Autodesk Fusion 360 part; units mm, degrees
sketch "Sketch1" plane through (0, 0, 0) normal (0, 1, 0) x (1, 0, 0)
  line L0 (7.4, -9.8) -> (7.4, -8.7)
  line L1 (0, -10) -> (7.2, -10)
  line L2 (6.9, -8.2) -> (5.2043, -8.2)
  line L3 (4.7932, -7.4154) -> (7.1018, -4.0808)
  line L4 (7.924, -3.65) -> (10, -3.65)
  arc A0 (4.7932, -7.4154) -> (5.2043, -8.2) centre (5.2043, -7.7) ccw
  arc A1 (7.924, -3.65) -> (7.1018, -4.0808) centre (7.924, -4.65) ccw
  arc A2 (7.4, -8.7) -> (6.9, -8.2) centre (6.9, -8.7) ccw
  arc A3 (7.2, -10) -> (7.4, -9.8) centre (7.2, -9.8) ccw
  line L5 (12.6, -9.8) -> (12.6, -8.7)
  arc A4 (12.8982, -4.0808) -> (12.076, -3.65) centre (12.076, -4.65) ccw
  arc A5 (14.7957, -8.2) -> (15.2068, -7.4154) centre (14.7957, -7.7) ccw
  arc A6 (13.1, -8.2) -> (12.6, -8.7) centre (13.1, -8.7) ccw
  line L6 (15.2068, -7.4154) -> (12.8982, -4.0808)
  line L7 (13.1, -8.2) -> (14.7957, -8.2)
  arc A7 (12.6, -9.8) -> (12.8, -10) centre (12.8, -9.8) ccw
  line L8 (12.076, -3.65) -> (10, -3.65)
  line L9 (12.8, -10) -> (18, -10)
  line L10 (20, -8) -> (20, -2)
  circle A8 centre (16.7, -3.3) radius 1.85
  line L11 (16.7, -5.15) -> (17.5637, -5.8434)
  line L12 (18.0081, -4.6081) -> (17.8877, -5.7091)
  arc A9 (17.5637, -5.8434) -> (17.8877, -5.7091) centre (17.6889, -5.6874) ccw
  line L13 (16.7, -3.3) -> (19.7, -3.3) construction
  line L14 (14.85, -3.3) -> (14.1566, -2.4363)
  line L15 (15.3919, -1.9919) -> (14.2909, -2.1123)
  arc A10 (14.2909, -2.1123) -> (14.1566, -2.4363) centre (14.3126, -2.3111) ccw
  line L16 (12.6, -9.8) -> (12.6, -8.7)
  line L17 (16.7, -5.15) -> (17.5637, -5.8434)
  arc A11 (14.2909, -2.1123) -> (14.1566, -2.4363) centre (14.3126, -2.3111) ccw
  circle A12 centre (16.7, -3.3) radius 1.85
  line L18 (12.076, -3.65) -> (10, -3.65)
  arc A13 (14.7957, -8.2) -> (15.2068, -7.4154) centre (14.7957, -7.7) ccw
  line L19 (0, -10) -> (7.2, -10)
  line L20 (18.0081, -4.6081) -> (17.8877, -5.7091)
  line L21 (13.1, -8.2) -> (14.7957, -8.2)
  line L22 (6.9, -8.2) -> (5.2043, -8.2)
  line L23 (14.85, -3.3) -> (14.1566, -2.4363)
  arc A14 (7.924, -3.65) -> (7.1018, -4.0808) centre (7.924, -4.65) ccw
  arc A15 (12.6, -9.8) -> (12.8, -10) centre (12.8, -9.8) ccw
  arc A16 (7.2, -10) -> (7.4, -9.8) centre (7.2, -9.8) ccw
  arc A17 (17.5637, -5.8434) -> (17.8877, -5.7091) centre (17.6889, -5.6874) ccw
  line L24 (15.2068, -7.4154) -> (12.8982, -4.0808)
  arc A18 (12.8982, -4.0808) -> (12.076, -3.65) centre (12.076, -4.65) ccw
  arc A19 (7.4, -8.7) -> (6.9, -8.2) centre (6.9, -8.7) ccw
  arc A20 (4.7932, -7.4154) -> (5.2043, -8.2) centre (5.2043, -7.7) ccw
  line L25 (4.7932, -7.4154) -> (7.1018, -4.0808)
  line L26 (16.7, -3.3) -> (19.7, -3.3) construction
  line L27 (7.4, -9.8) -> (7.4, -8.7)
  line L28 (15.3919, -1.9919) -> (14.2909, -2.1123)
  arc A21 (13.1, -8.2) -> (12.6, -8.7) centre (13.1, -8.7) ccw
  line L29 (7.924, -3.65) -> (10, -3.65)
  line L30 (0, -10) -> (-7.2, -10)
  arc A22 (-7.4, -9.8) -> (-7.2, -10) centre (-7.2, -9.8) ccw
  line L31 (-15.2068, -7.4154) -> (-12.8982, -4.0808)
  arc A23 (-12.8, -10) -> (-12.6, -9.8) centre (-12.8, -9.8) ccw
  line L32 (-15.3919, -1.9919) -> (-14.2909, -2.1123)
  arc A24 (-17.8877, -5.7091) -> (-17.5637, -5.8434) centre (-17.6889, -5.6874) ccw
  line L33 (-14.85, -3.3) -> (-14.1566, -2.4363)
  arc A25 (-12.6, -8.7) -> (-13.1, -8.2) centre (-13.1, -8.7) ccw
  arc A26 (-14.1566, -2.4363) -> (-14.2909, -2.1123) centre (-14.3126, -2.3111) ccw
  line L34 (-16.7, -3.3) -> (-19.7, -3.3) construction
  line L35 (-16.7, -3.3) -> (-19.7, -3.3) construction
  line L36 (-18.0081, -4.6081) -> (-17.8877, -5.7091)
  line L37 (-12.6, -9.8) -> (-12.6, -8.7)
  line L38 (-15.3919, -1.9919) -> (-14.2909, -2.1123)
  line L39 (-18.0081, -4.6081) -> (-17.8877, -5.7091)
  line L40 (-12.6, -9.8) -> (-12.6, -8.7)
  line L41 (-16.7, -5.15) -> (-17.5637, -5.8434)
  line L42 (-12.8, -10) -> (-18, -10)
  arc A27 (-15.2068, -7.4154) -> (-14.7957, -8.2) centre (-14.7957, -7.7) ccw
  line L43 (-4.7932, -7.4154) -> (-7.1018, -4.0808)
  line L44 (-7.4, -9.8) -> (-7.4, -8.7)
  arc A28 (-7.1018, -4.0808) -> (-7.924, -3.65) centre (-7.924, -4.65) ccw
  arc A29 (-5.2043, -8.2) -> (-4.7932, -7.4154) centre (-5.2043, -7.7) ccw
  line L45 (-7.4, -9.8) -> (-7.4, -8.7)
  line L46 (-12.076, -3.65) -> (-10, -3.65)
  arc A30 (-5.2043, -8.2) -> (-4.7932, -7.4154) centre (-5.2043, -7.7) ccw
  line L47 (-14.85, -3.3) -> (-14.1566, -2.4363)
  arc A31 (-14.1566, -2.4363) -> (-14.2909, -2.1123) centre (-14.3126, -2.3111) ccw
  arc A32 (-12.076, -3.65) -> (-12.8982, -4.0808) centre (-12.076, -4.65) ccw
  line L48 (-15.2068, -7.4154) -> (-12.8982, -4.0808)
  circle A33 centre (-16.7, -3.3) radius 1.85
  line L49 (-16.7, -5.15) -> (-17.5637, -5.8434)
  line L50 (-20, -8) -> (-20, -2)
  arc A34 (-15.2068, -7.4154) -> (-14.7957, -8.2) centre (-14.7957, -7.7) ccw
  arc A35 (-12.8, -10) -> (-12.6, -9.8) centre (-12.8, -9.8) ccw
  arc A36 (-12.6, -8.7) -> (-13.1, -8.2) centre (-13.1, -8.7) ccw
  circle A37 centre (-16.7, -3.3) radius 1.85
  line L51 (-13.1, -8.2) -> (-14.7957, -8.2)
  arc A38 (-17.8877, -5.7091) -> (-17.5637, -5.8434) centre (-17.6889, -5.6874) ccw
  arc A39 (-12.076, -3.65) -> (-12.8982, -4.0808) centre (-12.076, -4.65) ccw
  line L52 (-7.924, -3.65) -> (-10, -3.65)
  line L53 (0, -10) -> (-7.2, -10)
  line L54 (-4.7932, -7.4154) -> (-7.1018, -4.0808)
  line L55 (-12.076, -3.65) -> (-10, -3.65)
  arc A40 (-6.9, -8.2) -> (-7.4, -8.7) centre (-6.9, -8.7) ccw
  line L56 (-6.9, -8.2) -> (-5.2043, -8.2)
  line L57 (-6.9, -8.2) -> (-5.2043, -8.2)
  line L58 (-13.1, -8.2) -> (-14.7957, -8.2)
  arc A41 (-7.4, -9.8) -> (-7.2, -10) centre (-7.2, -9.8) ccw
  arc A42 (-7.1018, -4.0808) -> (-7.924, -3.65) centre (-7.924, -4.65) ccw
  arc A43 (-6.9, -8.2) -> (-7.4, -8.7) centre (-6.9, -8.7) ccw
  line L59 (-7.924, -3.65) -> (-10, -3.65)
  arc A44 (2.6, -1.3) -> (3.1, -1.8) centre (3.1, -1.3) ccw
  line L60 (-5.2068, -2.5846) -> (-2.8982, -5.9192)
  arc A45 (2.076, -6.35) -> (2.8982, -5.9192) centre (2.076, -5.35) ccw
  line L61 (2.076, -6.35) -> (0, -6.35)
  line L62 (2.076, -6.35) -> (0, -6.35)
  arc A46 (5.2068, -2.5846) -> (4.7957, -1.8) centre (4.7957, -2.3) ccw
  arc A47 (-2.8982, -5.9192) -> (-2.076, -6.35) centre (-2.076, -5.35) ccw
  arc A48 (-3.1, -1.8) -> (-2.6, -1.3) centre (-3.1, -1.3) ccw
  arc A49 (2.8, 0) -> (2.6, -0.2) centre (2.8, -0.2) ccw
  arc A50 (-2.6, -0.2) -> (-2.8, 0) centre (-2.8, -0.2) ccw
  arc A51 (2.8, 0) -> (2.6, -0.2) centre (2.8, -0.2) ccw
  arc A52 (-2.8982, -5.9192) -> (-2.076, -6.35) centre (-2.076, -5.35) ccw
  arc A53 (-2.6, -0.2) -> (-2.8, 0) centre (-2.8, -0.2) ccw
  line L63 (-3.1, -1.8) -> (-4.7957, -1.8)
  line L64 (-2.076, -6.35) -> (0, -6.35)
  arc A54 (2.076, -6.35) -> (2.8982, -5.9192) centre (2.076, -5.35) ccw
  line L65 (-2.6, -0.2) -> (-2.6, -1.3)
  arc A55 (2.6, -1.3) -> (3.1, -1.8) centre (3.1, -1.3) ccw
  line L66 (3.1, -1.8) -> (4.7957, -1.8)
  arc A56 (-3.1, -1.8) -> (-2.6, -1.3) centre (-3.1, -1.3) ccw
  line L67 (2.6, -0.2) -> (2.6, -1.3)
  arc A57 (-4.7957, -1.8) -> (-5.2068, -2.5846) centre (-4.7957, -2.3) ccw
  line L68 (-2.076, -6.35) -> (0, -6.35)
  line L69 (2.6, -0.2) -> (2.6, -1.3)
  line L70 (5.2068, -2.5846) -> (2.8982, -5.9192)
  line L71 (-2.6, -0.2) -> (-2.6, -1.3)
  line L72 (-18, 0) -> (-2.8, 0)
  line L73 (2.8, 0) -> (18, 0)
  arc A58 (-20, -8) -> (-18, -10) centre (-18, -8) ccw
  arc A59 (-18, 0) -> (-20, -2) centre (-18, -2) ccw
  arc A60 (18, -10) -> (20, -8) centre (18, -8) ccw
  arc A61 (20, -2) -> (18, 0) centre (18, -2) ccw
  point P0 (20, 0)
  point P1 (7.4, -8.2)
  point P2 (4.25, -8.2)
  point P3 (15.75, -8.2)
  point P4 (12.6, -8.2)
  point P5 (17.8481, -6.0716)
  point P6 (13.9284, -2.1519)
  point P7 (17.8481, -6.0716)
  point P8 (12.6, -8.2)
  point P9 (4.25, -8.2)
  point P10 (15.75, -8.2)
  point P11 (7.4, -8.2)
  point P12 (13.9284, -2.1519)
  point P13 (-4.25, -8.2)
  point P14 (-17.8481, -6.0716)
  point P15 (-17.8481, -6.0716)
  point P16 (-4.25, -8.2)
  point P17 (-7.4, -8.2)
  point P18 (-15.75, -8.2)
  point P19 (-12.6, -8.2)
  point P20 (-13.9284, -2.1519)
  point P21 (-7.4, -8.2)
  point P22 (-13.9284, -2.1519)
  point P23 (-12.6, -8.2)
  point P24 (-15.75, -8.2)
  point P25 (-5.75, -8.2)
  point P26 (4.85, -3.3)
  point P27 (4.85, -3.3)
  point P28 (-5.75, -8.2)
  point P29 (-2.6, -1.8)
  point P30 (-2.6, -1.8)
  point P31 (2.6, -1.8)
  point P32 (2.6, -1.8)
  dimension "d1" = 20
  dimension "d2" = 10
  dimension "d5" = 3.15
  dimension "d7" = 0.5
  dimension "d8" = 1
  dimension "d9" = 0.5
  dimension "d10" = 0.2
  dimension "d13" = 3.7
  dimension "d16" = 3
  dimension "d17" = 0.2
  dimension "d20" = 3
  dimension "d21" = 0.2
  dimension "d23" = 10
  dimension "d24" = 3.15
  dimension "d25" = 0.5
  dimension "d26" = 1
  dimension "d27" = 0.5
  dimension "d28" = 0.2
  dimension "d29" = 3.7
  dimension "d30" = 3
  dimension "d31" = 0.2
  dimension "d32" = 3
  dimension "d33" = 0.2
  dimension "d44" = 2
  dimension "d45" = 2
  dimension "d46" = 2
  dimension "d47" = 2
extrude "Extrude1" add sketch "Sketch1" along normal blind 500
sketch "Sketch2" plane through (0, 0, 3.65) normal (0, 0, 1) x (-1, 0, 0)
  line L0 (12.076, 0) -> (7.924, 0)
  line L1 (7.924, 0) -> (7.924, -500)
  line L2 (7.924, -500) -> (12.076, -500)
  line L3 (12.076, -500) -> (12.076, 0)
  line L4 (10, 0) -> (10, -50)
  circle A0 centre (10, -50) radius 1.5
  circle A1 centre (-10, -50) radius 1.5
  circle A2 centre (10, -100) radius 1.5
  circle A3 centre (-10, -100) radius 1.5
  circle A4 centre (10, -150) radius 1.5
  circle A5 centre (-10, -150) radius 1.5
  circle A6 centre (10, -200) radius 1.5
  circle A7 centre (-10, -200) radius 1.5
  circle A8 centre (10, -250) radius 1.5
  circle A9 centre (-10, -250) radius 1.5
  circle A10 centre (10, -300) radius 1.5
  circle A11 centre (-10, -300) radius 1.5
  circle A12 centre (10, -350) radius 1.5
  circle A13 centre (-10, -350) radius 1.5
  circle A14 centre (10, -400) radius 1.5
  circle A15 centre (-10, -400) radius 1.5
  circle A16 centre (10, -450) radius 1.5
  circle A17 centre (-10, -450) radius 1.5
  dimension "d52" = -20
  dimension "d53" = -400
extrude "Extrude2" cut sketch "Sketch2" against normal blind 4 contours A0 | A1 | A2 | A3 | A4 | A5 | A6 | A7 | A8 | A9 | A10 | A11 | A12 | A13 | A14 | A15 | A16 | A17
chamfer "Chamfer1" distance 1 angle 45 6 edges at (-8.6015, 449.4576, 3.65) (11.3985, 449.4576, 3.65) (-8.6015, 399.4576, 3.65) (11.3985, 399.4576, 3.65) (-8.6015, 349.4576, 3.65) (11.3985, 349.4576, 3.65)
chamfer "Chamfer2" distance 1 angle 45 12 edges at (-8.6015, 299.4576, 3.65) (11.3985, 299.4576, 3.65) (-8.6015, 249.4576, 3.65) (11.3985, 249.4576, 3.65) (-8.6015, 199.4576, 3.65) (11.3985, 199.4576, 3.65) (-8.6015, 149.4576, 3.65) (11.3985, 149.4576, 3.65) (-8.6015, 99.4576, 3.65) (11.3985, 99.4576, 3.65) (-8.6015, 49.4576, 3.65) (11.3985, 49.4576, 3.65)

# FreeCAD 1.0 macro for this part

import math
import FreeCAD as App
import Part
import Sketcher

V = App.Vector
Q = App.Units.Quantity


def edges_at(feature, points):
    """Names of the edges that pass closest to the given points."""
    edges = feature.Shape.Edges
    near = lambda p: min(range(len(edges)), key=lambda i: edges[i].distToShape(Part.Vertex(*p))[0])
    return sorted({f"Edge{near(p) + 1}" for p in points})

doc = App.newDocument("Part")
body = doc.addObject("PartDesign::Body", "Body")

# Sketch on XZ plane
sketch1 = doc.addObject("Sketcher::SketchObject", "Sketch")
body.addObject(sketch1)
sketch1.AttachmentSupport = (doc.XZ_Plane, [""])
sketch1.MapMode = "FlatFace"
sketch1.addGeometry([
    Part.ArcOfCircle(Part.Circle(V(7.2, 9.8, 0), V(0, 0, 1), 0.2), math.radians(0), math.radians(90)),  # 0
    Part.LineSegment(V(7.4, 9.8, 0), V(7.4, 8.7, 0)),  # 1
    Part.ArcOfCircle(Part.Circle(V(6.9, 8.7, 0), V(0, 0, 1), 0.5), math.radians(-90), math.radians(0)),  # 2
    Part.LineSegment(V(6.9, 8.2, 0), V(5.2, 8.2, 0)),  # 3
    Part.ArcOfCircle(Part.Circle(V(5.2, 7.7, 0), V(0, 0, 1), 0.5), math.radians(90), math.radians(215)),  # 4
    Part.LineSegment(V(4.79, 7.42, 0), V(7.1, 4.08, 0)),  # 5
    Part.ArcOfCircle(Part.Circle(V(7.92, 4.65, 0), V(0, 0, 1), 1), math.radians(-145), math.radians(-90)),  # 6
    Part.LineSegment(V(7.92, 3.65, 0), V(12.08, 3.65, 0)),  # 7
    Part.ArcOfCircle(Part.Circle(V(12.08, 4.65, 0), V(0, 0, 1), 1), math.radians(-90), math.radians(-35)),  # 8
    Part.LineSegment(V(12.9, 4.08, 0), V(15.21, 7.42, 0)),  # 9
    Part.ArcOfCircle(Part.Circle(V(14.8, 7.7, 0), V(0, 0, 1), 0.5), math.radians(-35), math.radians(90)),  # 10
    Part.LineSegment(V(14.8, 8.2, 0), V(13.1, 8.2, 0)),  # 11
    Part.ArcOfCircle(Part.Circle(V(13.1, 8.7, 0), V(0, 0, 1), 0.5), math.radians(180), math.radians(270)),  # 12
    Part.LineSegment(V(12.6, 8.7, 0), V(12.6, 9.8, 0)),  # 13
    Part.ArcOfCircle(Part.Circle(V(12.8, 9.8, 0), V(0, 0, 1), 0.2), math.radians(90), math.radians(180)),  # 14
    Part.LineSegment(V(12.8, 10, 0), V(18, 10, 0)),  # 15
    Part.ArcOfCircle(Part.Circle(V(18, 8, 0), V(0, 0, 1), 2), math.radians(0), math.radians(90)),  # 16
    Part.LineSegment(V(20, 8, 0), V(20, 2, 0)),  # 17
    Part.ArcOfCircle(Part.Circle(V(18, 2, 0), V(0, 0, 1), 2), math.radians(-90), math.radians(0)),  # 18
    Part.LineSegment(V(18, 0, 0), V(2.8, 0, 0)),  # 19
    Part.ArcOfCircle(Part.Circle(V(2.8, 0.2, 0), V(0, 0, 1), 0.2), math.radians(180), math.radians(270)),  # 20
    Part.LineSegment(V(2.6, 0.2, 0), V(2.6, 1.3, 0)),  # 21
    Part.ArcOfCircle(Part.Circle(V(3.1, 1.3, 0), V(0, 0, 1), 0.5), math.radians(90), math.radians(180)),  # 22
    Part.LineSegment(V(3.1, 1.8, 0), V(4.8, 1.8, 0)),  # 23
    Part.ArcOfCircle(Part.Circle(V(4.8, 2.3, 0), V(0, 0, 1), 0.5), math.radians(-90), math.radians(35)),  # 24
    Part.LineSegment(V(5.21, 2.58, 0), V(2.9, 5.92, 0)),  # 25
    Part.ArcOfCircle(Part.Circle(V(2.08, 5.35, 0), V(0, 0, 1), 1), math.radians(35), math.radians(90)),  # 26
    Part.LineSegment(V(2.08, 6.35, 0), V(-2.08, 6.35, 0)),  # 27
    Part.ArcOfCircle(Part.Circle(V(-2.08, 5.35, 0), V(0, 0, 1), 1), math.radians(90), math.radians(145)),  # 28
    Part.LineSegment(V(-2.9, 5.92, 0), V(-5.21, 2.58, 0)),  # 29
    Part.ArcOfCircle(Part.Circle(V(-4.8, 2.3, 0), V(0, 0, 1), 0.5), math.radians(145), math.radians(270)),  # 30
    Part.LineSegment(V(-4.8, 1.8, 0), V(-3.1, 1.8, 0)),  # 31
    Part.ArcOfCircle(Part.Circle(V(-3.1, 1.3, 0), V(0, 0, 1), 0.5), math.radians(0), math.radians(90)),  # 32
    Part.LineSegment(V(-2.6, 1.3, 0), V(-2.6, 0.2, 0)),  # 33
    Part.ArcOfCircle(Part.Circle(V(-2.8, 0.2, 0), V(0, 0, 1), 0.2), math.radians(-90), math.radians(0)),  # 34
    Part.LineSegment(V(-2.8, 0, 0), V(-18, 0, 0)),  # 35
    Part.ArcOfCircle(Part.Circle(V(-18, 2, 0), V(0, 0, 1), 2), math.radians(180), math.radians(270)),  # 36
    Part.LineSegment(V(-20, 2, 0), V(-20, 8, 0)),  # 37
    Part.ArcOfCircle(Part.Circle(V(-18, 8, 0), V(0, 0, 1), 2), math.radians(90), math.radians(180)),  # 38
    Part.LineSegment(V(-18, 10, 0), V(-12.8, 10, 0)),  # 39
    Part.ArcOfCircle(Part.Circle(V(-12.8, 9.8, 0), V(0, 0, 1), 0.2), math.radians(0), math.radians(90)),  # 40
    Part.LineSegment(V(-12.6, 9.8, 0), V(-12.6, 8.7, 0)),  # 41
    Part.ArcOfCircle(Part.Circle(V(-13.1, 8.7, 0), V(0, 0, 1), 0.5), math.radians(-90), math.radians(0)),  # 42
    Part.LineSegment(V(-13.1, 8.2, 0), V(-14.8, 8.2, 0)),  # 43
    Part.ArcOfCircle(Part.Circle(V(-14.8, 7.7, 0), V(0, 0, 1), 0.5), math.radians(90), math.radians(215)),  # 44
    Part.LineSegment(V(-15.21, 7.42, 0), V(-12.9, 4.08, 0)),  # 45
    Part.ArcOfCircle(Part.Circle(V(-12.08, 4.65, 0), V(0, 0, 1), 1), math.radians(-145), math.radians(-90)),  # 46
    Part.LineSegment(V(-12.08, 3.65, 0), V(-7.92, 3.65, 0)),  # 47
    Part.ArcOfCircle(Part.Circle(V(-7.92, 4.65, 0), V(0, 0, 1), 1), math.radians(-90), math.radians(-35)),  # 48
    Part.LineSegment(V(-7.1, 4.08, 0), V(-4.79, 7.42, 0)),  # 49
    Part.ArcOfCircle(Part.Circle(V(-5.2, 7.7, 0), V(0, 0, 1), 0.5), math.radians(-35), math.radians(90)),  # 50
    Part.LineSegment(V(-5.2, 8.2, 0), V(-6.9, 8.2, 0)),  # 51
    Part.ArcOfCircle(Part.Circle(V(-6.9, 8.7, 0), V(0, 0, 1), 0.5), math.radians(180), math.radians(270)),  # 52
    Part.LineSegment(V(-7.4, 8.7, 0), V(-7.4, 9.8, 0)),  # 53
    Part.ArcOfCircle(Part.Circle(V(-7.2, 9.8, 0), V(0, 0, 1), 0.2), math.radians(90), math.radians(180)),  # 54
    Part.LineSegment(V(-7.2, 10, 0), V(7.2, 10, 0)),  # 55
    Part.ArcOfCircle(Part.Circle(V(-16.7, 3.3, 0), V(0, 0, 1), 1.85), math.radians(135), math.radians(315)),  # 56
    Part.LineSegment(V(-15.39, 1.99, 0), V(-14.29, 2.11, 0)),  # 57
    Part.ArcOfCircle(Part.Circle(V(-14.31, 2.31, 0), V(0, 0, 1), 0.2), math.radians(-84), math.radians(39)),  # 58
    Part.LineSegment(V(-14.16, 2.44, 0), V(-14.85, 3.3, 0)),  # 59
    Part.ArcOfCircle(Part.Circle(V(-16.7, 3.3, 0), V(0, 0, 1), 1.85), math.radians(0), math.radians(90)),  # 60
    Part.LineSegment(V(-16.7, 5.15, 0), V(-17.56, 5.84, 0)),  # 61
    Part.ArcOfCircle(Part.Circle(V(-17.69, 5.69, 0), V(0, 0, 1), 0.2), math.radians(51), math.radians(174)),  # 62
    Part.LineSegment(V(-17.89, 5.71, 0), V(-18.01, 4.61, 0)),  # 63
    Part.ArcOfCircle(Part.Circle(V(16.7, 3.3, 0), V(0, 0, 1), 1.85), math.radians(-135), math.radians(45)),  # 64
    Part.LineSegment(V(18.01, 4.61, 0), V(17.89, 5.71, 0)),  # 65
    Part.ArcOfCircle(Part.Circle(V(17.69, 5.69, 0), V(0, 0, 1), 0.2), math.radians(6), math.radians(129)),  # 66
    Part.LineSegment(V(17.56, 5.84, 0), V(16.7, 5.15, 0)),  # 67
    Part.ArcOfCircle(Part.Circle(V(16.7, 3.3, 0), V(0, 0, 1), 1.85), math.radians(90), math.radians(180)),  # 68
    Part.LineSegment(V(14.85, 3.3, 0), V(14.16, 2.44, 0)),  # 69
    Part.ArcOfCircle(Part.Circle(V(14.31, 2.31, 0), V(0, 0, 1), 0.2), math.radians(141), math.radians(264)),  # 70
    Part.LineSegment(V(14.29, 2.11, 0), V(15.39, 1.99, 0)),  # 71
], False)
sketch1.addConstraint([
    Sketcher.Constraint("Tangent", 0, 1, 1, 1),
    Sketcher.Constraint("Tangent", 1, 2, 2, 2),
    Sketcher.Constraint("Tangent", 2, 1, 3, 1),
    Sketcher.Constraint("Tangent", 3, 2, 4, 1),
    Sketcher.Constraint("Tangent", 4, 2, 5, 1),
    Sketcher.Constraint("Tangent", 5, 2, 6, 1),
    Sketcher.Constraint("Tangent", 6, 2, 7, 1),
    Sketcher.Constraint("Tangent", 7, 2, 8, 1),
    Sketcher.Constraint("Tangent", 8, 2, 9, 1),
    Sketcher.Constraint("Tangent", 9, 2, 10, 1),
    Sketcher.Constraint("Tangent", 10, 2, 11, 1),
    Sketcher.Constraint("Tangent", 11, 2, 12, 2),
    Sketcher.Constraint("Tangent", 12, 1, 13, 1),
    Sketcher.Constraint("Tangent", 13, 2, 14, 2),
    Sketcher.Constraint("Tangent", 14, 1, 15, 1),
    Sketcher.Constraint("Tangent", 15, 2, 16, 2),
    Sketcher.Constraint("Tangent", 16, 1, 17, 1),
    Sketcher.Constraint("Tangent", 17, 2, 18, 2),
    Sketcher.Constraint("Tangent", 18, 1, 19, 1),
    Sketcher.Constraint("Tangent", 19, 2, 20, 2),
    Sketcher.Constraint("Tangent", 20, 1, 21, 1),
    Sketcher.Constraint("Tangent", 21, 2, 22, 2),
    Sketcher.Constraint("Tangent", 22, 1, 23, 1),
    Sketcher.Constraint("Tangent", 23, 2, 24, 1),
    Sketcher.Constraint("Tangent", 24, 2, 25, 1),
    Sketcher.Constraint("Tangent", 25, 2, 26, 1),
    Sketcher.Constraint("Tangent", 26, 2, 27, 1),
    Sketcher.Constraint("Tangent", 27, 2, 28, 1),
    Sketcher.Constraint("Tangent", 28, 2, 29, 1),
    Sketcher.Constraint("Tangent", 29, 2, 30, 1),
    Sketcher.Constraint("Tangent", 30, 2, 31, 1),
    Sketcher.Constraint("Tangent", 31, 2, 32, 2),
    Sketcher.Constraint("Tangent", 32, 1, 33, 1),
    Sketcher.Constraint("Tangent", 33, 2, 34, 2),
    Sketcher.Constraint("Tangent", 34, 1, 35, 1),
    Sketcher.Constraint("Tangent", 35, 2, 36, 2),
    Sketcher.Constraint("Tangent", 36, 1, 37, 1),
    Sketcher.Constraint("Tangent", 37, 2, 38, 2),
    Sketcher.Constraint("Tangent", 38, 1, 39, 1),
    Sketcher.Constraint("Tangent", 39, 2, 40, 2),
    Sketcher.Constraint("Tangent", 40, 1, 41, 1),
    Sketcher.Constraint("Tangent", 41, 2, 42, 2),
    Sketcher.Constraint("Tangent", 42, 1, 43, 1),
    Sketcher.Constraint("Tangent", 43, 2, 44, 1),
    Sketcher.Constraint("Tangent", 44, 2, 45, 1),
    Sketcher.Constraint("Tangent", 45, 2, 46, 1),
    Sketcher.Constraint("Tangent", 46, 2, 47, 1),
    Sketcher.Constraint("Tangent", 47, 2, 48, 1),
    Sketcher.Constraint("Tangent", 48, 2, 49, 1),
    Sketcher.Constraint("Tangent", 49, 2, 50, 1),
    Sketcher.Constraint("Tangent", 50, 2, 51, 1),
    Sketcher.Constraint("Tangent", 51, 2, 52, 2),
    Sketcher.Constraint("Tangent", 52, 1, 53, 1),
    Sketcher.Constraint("Tangent", 53, 2, 54, 2),
    Sketcher.Constraint("Tangent", 54, 1, 55, 1),
    Sketcher.Constraint("Tangent", 55, 2, 0, 2),
    Sketcher.Constraint("Coincident", 56, 2, 57, 1),
    Sketcher.Constraint("Tangent", 57, 2, 58, 1),
    Sketcher.Constraint("Tangent", 58, 2, 59, 1),
    Sketcher.Constraint("Coincident", 59, 2, 60, 1),
    Sketcher.Constraint("Coincident", 60, 2, 61, 1),
    Sketcher.Constraint("Tangent", 61, 2, 62, 1),
    Sketcher.Constraint("Tangent", 62, 2, 63, 1),
    Sketcher.Constraint("Coincident", 63, 2, 56, 1),
    Sketcher.Constraint("Coincident", 64, 2, 65, 1),
    Sketcher.Constraint("Tangent", 65, 2, 66, 1),
    Sketcher.Constraint("Tangent", 66, 2, 67, 1),
    Sketcher.Constraint("Coincident", 67, 2, 68, 1),
    Sketcher.Constraint("Coincident", 68, 2, 69, 1),
    Sketcher.Constraint("Tangent", 69, 2, 70, 1),
    Sketcher.Constraint("Tangent", 70, 2, 71, 1),
    Sketcher.Constraint("Coincident", 71, 2, 64, 1),
    Sketcher.Constraint("Vertical", 1),
    Sketcher.Constraint("Horizontal", 3),
    Sketcher.Constraint("Horizontal", 7),
    Sketcher.Constraint("Horizontal", 11),
    Sketcher.Constraint("Vertical", 13),
    Sketcher.Constraint("Horizontal", 15),
    Sketcher.Constraint("Vertical", 17),
    Sketcher.Constraint("Horizontal", 19),
    Sketcher.Constraint("Vertical", 21),
    Sketcher.Constraint("Horizontal", 23),
    Sketcher.Constraint("Horizontal", 27),
    Sketcher.Constraint("Horizontal", 31),
    Sketcher.Constraint("Vertical", 33),
    Sketcher.Constraint("Horizontal", 35),
    Sketcher.Constraint("Vertical", 37),
    Sketcher.Constraint("Horizontal", 39),
    Sketcher.Constraint("Vertical", 41),
    Sketcher.Constraint("Horizontal", 43),
    Sketcher.Constraint("Horizontal", 47),
    Sketcher.Constraint("Horizontal", 51),
    Sketcher.Constraint("Vertical", 53),
    Sketcher.Constraint("Horizontal", 55),
    Sketcher.Constraint("Coincident", 60, 3, 56, 3),
    Sketcher.Constraint("Coincident", 68, 3, 64, 3),
    Sketcher.Constraint("Equal", 2, 4),
    Sketcher.Constraint("Equal", 6, 8),
    Sketcher.Constraint("Equal", 4, 10),
    Sketcher.Constraint("Equal", 10, 12),
    Sketcher.Constraint("Equal", 0, 14),
    Sketcher.Constraint("Equal", 16, 18),
    Sketcher.Constraint("Equal", 14, 20),
    Sketcher.Constraint("Equal", 12, 22),
    Sketcher.Constraint("Equal", 22, 24),
    Sketcher.Constraint("Equal", 8, 26),
    Sketcher.Constraint("Equal", 26, 28),
    Sketcher.Constraint("Equal", 24, 30),
    Sketcher.Constraint("Equal", 30, 32),
    Sketcher.Constraint("Equal", 20, 34),
    Sketcher.Constraint("Equal", 18, 36),
    Sketcher.Constraint("Equal", 36, 38),
    Sketcher.Constraint("Equal", 34, 40),
    Sketcher.Constraint("Equal", 32, 42),
    Sketcher.Constraint("Equal", 42, 44),
    Sketcher.Constraint("Equal", 28, 46),
    Sketcher.Constraint("Equal", 46, 48),
    Sketcher.Constraint("Equal", 44, 50),
    Sketcher.Constraint("Equal", 50, 52),
    Sketcher.Constraint("Equal", 40, 54),
    Sketcher.Constraint("Equal", 54, 58),
    Sketcher.Constraint("Equal", 56, 60),
    Sketcher.Constraint("Equal", 58, 62),
    Sketcher.Constraint("Equal", 60, 64),
    Sketcher.Constraint("Equal", 62, 66),
    Sketcher.Constraint("Equal", 64, 68),
    Sketcher.Constraint("Equal", 66, 70),
    Sketcher.Constraint("Symmetric", 19, 2, 34, 1, -1, 1),
    Sketcher.Constraint("Symmetric", 24, 3, 30, 3, -2),
    Sketcher.Constraint("Symmetric", 18, 3, 36, 3, -2),
    Sketcher.Constraint("Symmetric", 14, 3, 40, 3, -2),
    Sketcher.Constraint("Symmetric", 10, 3, 44, 3, -2),
    Sketcher.Constraint("Symmetric", 8, 3, 46, 3, -2),
    Sketcher.Constraint("Symmetric", 4, 3, 50, 3, -2),
    Sketcher.Constraint("Symmetric", 56, 3, 64, 3, -2),
    Sketcher.Constraint("Symmetric", 62, 3, 66, 3, -2),
    Sketcher.Constraint("Symmetric", 58, 3, 70, 3, -2),
    Sketcher.Constraint("Parallel", 5, 25),
    Sketcher.Constraint("Parallel", 9, 29),
    Sketcher.Constraint("Parallel", 25, 45),
    Sketcher.Constraint("Parallel", 29, 49),
    Sketcher.Constraint("Perpendicular", 57, 65),
    Sketcher.Constraint("Perpendicular", 59, 67),
    Sketcher.Constraint("Perpendicular", 61, 69),
    Sketcher.Constraint("Perpendicular", 63, 71),
    Sketcher.Constraint("Horizontal", 4, 3, 10, 3),
    Sketcher.Constraint("Horizontal", 0, 3, 14, 3),
    Sketcher.Constraint("Horizontal", 68, 3, 59, 2),
    Sketcher.Constraint("Horizontal", 63, 2, 64, 2),
    Sketcher.Constraint("Horizontal", 61, 2, 66, 2),
    Sketcher.Constraint("Vertical", 56, 3, 60, 2),
    Sketcher.Constraint("Equal", 3, 11),
    Sketcher.Constraint("Equal", 11, 23),
    Sketcher.Constraint("Equal", 7, 27),
    Sketcher.Constraint("Equal", 43, 51),
    Sketcher.Constraint("Equal", 13, 21),
    Sketcher.Constraint("Equal", 9, 25),
    Sketcher.Constraint("Equal", 57, 59),
    Sketcher.Constraint("Equal", 59, 61),
    Sketcher.Constraint("Radius", 6, Q("1 mm")),
    Sketcher.Constraint("Radius", 16, Q("2 mm")),
    Sketcher.Constraint("Radius", 0, Q("0.2 mm")),
    Sketcher.Constraint("Radius", 2, Q("0.5 mm")),
    Sketcher.Constraint("Radius", 56, Q("1.85 mm")),
    Sketcher.Constraint("DistanceY", -1, 1, 14, 1, Q("10 mm")),
    Sketcher.Constraint("DistanceX", -1, 1, 16, 1, Q("20 mm")),
    Sketcher.Constraint("DistanceX", 15, 1, 15, 2, Q("5.2 mm")),
    Sketcher.Constraint("DistanceX", 19, 2, 19, 1, Q("15.2 mm")),
    Sketcher.Constraint("DistanceY", 1, 2, 1, 1, Q("1.1 mm")),
    Sketcher.Constraint("DistanceX", 56, 3, -1, 1, Q("16.7 mm")),
    Sketcher.Constraint("DistanceY", -1, 1, 56, 3, Q("3.3 mm")),
    Sketcher.Constraint("Angle", 57, Q("6.2408 deg")),
    Sketcher.Constraint("DistanceX", 7, 1, 7, 2, Q("4.152 mm")),
    Sketcher.Constraint("DistanceY", -1, 1, 6, 3, Q("4.65 mm")),
    Sketcher.Constraint("DistanceX", 3, 2, 3, 1, Q("1.6957 mm")),
    Sketcher.Constraint("DistanceY", -1, 1, 58, 3, Q("2.311 mm")),
])
pad1 = doc.addObject("PartDesign::Pad", "Pad")
body.addObject(pad1)
pad1.Profile = sketch1
pad1.Length = 500
pad1.Reversed = True

# Sketch on XY plane
sketch2 = doc.addObject("Sketcher::SketchObject", "Sketch001")
body.addObject(sketch2)
sketch2.AttachmentSupport = (doc.XY_Plane, [""])
sketch2.MapMode = "FlatFace"
sketch2.AttachmentOffset = App.Placement(V(0, 0, 3.65), App.Rotation())
sketch2.addGeometry([
    Part.Circle(V(-10, 50, 0), V(0, 0, 1), 1.5),  # 0
    Part.Circle(V(10, 50, 0), V(0, 0, 1), 1.5),  # 1
    Part.Circle(V(-10, 100, 0), V(0, 0, 1), 1.5),  # 2
    Part.Circle(V(10, 100, 0), V(0, 0, 1), 1.5),  # 3
    Part.Circle(V(-10, 150, 0), V(0, 0, 1), 1.5),  # 4
    Part.Circle(V(10, 150, 0), V(0, 0, 1), 1.5),  # 5
    Part.Circle(V(-10, 200, 0), V(0, 0, 1), 1.5),  # 6
    Part.Circle(V(10, 200, 0), V(0, 0, 1), 1.5),  # 7
    Part.Circle(V(-10, 250, 0), V(0, 0, 1), 1.5),  # 8
    Part.Circle(V(10, 250, 0), V(0, 0, 1), 1.5),  # 9
    Part.Circle(V(-10, 300, 0), V(0, 0, 1), 1.5),  # 10
    Part.Circle(V(10, 300, 0), V(0, 0, 1), 1.5),  # 11
    Part.Circle(V(-10, 350, 0), V(0, 0, 1), 1.5),  # 12
    Part.Circle(V(10, 350, 0), V(0, 0, 1), 1.5),  # 13
    Part.Circle(V(-10, 400, 0), V(0, 0, 1), 1.5),  # 14
    Part.Circle(V(10, 400, 0), V(0, 0, 1), 1.5),  # 15
    Part.Circle(V(-10, 450, 0), V(0, 0, 1), 1.5),  # 16
    Part.Circle(V(10, 450, 0), V(0, 0, 1), 1.5),  # 17
], False)
sketch2.addConstraint([
    Sketcher.Constraint("Equal", 0, 1),
    Sketcher.Constraint("Equal", 1, 2),
    Sketcher.Constraint("Equal", 2, 3),
    Sketcher.Constraint("Equal", 3, 4),
    Sketcher.Constraint("Equal", 4, 5),
    Sketcher.Constraint("Equal", 5, 6),
    Sketcher.Constraint("Equal", 6, 7),
    Sketcher.Constraint("Equal", 7, 8),
    Sketcher.Constraint("Equal", 8, 9),
    Sketcher.Constraint("Equal", 9, 10),
    Sketcher.Constraint("Equal", 10, 11),
    Sketcher.Constraint("Equal", 11, 12),
    Sketcher.Constraint("Equal", 12, 13),
    Sketcher.Constraint("Equal", 13, 14),
    Sketcher.Constraint("Equal", 14, 15),
    Sketcher.Constraint("Equal", 15, 16),
    Sketcher.Constraint("Equal", 16, 17),
    Sketcher.Constraint("Symmetric", 0, 3, 1, 3, -2),
    Sketcher.Constraint("Symmetric", 2, 3, 3, 3, -2),
    Sketcher.Constraint("Symmetric", 4, 3, 5, 3, -2),
    Sketcher.Constraint("Symmetric", 6, 3, 7, 3, -2),
    Sketcher.Constraint("Symmetric", 8, 3, 9, 3, -2),
    Sketcher.Constraint("Symmetric", 10, 3, 11, 3, -2),
    Sketcher.Constraint("Symmetric", 12, 3, 13, 3, -2),
    Sketcher.Constraint("Symmetric", 14, 3, 15, 3, -2),
    Sketcher.Constraint("Symmetric", 16, 3, 17, 3, -2),
    Sketcher.Constraint("Vertical", 0, 3, 2, 3),
    Sketcher.Constraint("Vertical", 2, 3, 4, 3),
    Sketcher.Constraint("Vertical", 4, 3, 6, 3),
    Sketcher.Constraint("Vertical", 6, 3, 8, 3),
    Sketcher.Constraint("Vertical", 8, 3, 10, 3),
    Sketcher.Constraint("Vertical", 10, 3, 12, 3),
    Sketcher.Constraint("Vertical", 12, 3, 14, 3),
    Sketcher.Constraint("Vertical", 14, 3, 16, 3),
    Sketcher.Constraint("Diameter", 0, Q("3 mm")),
    Sketcher.Constraint("DistanceY", -1, 1, 14, 3, Q("400 mm")),
    Sketcher.Constraint("DistanceX", 0, 3, 1, 3, Q("20 mm")),
    Sketcher.Constraint("DistanceY", -1, 1, 0, 3, Q("50 mm")),
    Sketcher.Constraint("DistanceY", -1, 1, 2, 3, Q("100 mm")),
    Sketcher.Constraint("DistanceY", -1, 1, 4, 3, Q("150 mm")),
    Sketcher.Constraint("DistanceY", -1, 1, 6, 3, Q("200 mm")),
    Sketcher.Constraint("DistanceY", -1, 1, 8, 3, Q("250 mm")),
    Sketcher.Constraint("DistanceY", -1, 1, 10, 3, Q("300 mm")),
    Sketcher.Constraint("DistanceY", -1, 1, 12, 3, Q("350 mm")),
    Sketcher.Constraint("DistanceY", -1, 1, 16, 3, Q("450 mm")),
])
pocket1 = doc.addObject("PartDesign::Pocket", "Pocket")
body.addObject(pocket1)
pocket1.Profile = sketch2
pocket1.Length = 4
doc.recompute()

chamfer = doc.addObject("PartDesign::Chamfer", "Chamfer")
body.addObject(chamfer)
chamfer.Base = (pocket1, edges_at(pocket1, [
    (-8.601, 449.458, 3.65),
    (11.399, 449.458, 3.65),
    (-8.601, 399.458, 3.65),
    (11.399, 399.458, 3.65),
    (-8.601, 349.458, 3.65),
    (11.399, 349.458, 3.65),
]))
chamfer.Size = 1
doc.recompute()

chamfer2 = doc.addObject("PartDesign::Chamfer", "Chamfer001")
body.addObject(chamfer2)
chamfer2.Base = (chamfer, edges_at(chamfer, [
    (-8.601, 299.458, 3.65),
    (11.399, 299.458, 3.65),
    (-8.601, 249.458, 3.65),
    (11.399, 249.458, 3.65),
    (-8.601, 199.458, 3.65),
    (11.399, 199.458, 3.65),
    (-8.601, 149.458, 3.65),
    (11.399, 149.458, 3.65),
    (-8.601, 99.458, 3.65),
    (11.399, 99.458, 3.65),
    (-8.601, 49.458, 3.65),
    (11.399, 49.458, 3.65),
]))
chamfer2.Size = 1

doc.recompute()
